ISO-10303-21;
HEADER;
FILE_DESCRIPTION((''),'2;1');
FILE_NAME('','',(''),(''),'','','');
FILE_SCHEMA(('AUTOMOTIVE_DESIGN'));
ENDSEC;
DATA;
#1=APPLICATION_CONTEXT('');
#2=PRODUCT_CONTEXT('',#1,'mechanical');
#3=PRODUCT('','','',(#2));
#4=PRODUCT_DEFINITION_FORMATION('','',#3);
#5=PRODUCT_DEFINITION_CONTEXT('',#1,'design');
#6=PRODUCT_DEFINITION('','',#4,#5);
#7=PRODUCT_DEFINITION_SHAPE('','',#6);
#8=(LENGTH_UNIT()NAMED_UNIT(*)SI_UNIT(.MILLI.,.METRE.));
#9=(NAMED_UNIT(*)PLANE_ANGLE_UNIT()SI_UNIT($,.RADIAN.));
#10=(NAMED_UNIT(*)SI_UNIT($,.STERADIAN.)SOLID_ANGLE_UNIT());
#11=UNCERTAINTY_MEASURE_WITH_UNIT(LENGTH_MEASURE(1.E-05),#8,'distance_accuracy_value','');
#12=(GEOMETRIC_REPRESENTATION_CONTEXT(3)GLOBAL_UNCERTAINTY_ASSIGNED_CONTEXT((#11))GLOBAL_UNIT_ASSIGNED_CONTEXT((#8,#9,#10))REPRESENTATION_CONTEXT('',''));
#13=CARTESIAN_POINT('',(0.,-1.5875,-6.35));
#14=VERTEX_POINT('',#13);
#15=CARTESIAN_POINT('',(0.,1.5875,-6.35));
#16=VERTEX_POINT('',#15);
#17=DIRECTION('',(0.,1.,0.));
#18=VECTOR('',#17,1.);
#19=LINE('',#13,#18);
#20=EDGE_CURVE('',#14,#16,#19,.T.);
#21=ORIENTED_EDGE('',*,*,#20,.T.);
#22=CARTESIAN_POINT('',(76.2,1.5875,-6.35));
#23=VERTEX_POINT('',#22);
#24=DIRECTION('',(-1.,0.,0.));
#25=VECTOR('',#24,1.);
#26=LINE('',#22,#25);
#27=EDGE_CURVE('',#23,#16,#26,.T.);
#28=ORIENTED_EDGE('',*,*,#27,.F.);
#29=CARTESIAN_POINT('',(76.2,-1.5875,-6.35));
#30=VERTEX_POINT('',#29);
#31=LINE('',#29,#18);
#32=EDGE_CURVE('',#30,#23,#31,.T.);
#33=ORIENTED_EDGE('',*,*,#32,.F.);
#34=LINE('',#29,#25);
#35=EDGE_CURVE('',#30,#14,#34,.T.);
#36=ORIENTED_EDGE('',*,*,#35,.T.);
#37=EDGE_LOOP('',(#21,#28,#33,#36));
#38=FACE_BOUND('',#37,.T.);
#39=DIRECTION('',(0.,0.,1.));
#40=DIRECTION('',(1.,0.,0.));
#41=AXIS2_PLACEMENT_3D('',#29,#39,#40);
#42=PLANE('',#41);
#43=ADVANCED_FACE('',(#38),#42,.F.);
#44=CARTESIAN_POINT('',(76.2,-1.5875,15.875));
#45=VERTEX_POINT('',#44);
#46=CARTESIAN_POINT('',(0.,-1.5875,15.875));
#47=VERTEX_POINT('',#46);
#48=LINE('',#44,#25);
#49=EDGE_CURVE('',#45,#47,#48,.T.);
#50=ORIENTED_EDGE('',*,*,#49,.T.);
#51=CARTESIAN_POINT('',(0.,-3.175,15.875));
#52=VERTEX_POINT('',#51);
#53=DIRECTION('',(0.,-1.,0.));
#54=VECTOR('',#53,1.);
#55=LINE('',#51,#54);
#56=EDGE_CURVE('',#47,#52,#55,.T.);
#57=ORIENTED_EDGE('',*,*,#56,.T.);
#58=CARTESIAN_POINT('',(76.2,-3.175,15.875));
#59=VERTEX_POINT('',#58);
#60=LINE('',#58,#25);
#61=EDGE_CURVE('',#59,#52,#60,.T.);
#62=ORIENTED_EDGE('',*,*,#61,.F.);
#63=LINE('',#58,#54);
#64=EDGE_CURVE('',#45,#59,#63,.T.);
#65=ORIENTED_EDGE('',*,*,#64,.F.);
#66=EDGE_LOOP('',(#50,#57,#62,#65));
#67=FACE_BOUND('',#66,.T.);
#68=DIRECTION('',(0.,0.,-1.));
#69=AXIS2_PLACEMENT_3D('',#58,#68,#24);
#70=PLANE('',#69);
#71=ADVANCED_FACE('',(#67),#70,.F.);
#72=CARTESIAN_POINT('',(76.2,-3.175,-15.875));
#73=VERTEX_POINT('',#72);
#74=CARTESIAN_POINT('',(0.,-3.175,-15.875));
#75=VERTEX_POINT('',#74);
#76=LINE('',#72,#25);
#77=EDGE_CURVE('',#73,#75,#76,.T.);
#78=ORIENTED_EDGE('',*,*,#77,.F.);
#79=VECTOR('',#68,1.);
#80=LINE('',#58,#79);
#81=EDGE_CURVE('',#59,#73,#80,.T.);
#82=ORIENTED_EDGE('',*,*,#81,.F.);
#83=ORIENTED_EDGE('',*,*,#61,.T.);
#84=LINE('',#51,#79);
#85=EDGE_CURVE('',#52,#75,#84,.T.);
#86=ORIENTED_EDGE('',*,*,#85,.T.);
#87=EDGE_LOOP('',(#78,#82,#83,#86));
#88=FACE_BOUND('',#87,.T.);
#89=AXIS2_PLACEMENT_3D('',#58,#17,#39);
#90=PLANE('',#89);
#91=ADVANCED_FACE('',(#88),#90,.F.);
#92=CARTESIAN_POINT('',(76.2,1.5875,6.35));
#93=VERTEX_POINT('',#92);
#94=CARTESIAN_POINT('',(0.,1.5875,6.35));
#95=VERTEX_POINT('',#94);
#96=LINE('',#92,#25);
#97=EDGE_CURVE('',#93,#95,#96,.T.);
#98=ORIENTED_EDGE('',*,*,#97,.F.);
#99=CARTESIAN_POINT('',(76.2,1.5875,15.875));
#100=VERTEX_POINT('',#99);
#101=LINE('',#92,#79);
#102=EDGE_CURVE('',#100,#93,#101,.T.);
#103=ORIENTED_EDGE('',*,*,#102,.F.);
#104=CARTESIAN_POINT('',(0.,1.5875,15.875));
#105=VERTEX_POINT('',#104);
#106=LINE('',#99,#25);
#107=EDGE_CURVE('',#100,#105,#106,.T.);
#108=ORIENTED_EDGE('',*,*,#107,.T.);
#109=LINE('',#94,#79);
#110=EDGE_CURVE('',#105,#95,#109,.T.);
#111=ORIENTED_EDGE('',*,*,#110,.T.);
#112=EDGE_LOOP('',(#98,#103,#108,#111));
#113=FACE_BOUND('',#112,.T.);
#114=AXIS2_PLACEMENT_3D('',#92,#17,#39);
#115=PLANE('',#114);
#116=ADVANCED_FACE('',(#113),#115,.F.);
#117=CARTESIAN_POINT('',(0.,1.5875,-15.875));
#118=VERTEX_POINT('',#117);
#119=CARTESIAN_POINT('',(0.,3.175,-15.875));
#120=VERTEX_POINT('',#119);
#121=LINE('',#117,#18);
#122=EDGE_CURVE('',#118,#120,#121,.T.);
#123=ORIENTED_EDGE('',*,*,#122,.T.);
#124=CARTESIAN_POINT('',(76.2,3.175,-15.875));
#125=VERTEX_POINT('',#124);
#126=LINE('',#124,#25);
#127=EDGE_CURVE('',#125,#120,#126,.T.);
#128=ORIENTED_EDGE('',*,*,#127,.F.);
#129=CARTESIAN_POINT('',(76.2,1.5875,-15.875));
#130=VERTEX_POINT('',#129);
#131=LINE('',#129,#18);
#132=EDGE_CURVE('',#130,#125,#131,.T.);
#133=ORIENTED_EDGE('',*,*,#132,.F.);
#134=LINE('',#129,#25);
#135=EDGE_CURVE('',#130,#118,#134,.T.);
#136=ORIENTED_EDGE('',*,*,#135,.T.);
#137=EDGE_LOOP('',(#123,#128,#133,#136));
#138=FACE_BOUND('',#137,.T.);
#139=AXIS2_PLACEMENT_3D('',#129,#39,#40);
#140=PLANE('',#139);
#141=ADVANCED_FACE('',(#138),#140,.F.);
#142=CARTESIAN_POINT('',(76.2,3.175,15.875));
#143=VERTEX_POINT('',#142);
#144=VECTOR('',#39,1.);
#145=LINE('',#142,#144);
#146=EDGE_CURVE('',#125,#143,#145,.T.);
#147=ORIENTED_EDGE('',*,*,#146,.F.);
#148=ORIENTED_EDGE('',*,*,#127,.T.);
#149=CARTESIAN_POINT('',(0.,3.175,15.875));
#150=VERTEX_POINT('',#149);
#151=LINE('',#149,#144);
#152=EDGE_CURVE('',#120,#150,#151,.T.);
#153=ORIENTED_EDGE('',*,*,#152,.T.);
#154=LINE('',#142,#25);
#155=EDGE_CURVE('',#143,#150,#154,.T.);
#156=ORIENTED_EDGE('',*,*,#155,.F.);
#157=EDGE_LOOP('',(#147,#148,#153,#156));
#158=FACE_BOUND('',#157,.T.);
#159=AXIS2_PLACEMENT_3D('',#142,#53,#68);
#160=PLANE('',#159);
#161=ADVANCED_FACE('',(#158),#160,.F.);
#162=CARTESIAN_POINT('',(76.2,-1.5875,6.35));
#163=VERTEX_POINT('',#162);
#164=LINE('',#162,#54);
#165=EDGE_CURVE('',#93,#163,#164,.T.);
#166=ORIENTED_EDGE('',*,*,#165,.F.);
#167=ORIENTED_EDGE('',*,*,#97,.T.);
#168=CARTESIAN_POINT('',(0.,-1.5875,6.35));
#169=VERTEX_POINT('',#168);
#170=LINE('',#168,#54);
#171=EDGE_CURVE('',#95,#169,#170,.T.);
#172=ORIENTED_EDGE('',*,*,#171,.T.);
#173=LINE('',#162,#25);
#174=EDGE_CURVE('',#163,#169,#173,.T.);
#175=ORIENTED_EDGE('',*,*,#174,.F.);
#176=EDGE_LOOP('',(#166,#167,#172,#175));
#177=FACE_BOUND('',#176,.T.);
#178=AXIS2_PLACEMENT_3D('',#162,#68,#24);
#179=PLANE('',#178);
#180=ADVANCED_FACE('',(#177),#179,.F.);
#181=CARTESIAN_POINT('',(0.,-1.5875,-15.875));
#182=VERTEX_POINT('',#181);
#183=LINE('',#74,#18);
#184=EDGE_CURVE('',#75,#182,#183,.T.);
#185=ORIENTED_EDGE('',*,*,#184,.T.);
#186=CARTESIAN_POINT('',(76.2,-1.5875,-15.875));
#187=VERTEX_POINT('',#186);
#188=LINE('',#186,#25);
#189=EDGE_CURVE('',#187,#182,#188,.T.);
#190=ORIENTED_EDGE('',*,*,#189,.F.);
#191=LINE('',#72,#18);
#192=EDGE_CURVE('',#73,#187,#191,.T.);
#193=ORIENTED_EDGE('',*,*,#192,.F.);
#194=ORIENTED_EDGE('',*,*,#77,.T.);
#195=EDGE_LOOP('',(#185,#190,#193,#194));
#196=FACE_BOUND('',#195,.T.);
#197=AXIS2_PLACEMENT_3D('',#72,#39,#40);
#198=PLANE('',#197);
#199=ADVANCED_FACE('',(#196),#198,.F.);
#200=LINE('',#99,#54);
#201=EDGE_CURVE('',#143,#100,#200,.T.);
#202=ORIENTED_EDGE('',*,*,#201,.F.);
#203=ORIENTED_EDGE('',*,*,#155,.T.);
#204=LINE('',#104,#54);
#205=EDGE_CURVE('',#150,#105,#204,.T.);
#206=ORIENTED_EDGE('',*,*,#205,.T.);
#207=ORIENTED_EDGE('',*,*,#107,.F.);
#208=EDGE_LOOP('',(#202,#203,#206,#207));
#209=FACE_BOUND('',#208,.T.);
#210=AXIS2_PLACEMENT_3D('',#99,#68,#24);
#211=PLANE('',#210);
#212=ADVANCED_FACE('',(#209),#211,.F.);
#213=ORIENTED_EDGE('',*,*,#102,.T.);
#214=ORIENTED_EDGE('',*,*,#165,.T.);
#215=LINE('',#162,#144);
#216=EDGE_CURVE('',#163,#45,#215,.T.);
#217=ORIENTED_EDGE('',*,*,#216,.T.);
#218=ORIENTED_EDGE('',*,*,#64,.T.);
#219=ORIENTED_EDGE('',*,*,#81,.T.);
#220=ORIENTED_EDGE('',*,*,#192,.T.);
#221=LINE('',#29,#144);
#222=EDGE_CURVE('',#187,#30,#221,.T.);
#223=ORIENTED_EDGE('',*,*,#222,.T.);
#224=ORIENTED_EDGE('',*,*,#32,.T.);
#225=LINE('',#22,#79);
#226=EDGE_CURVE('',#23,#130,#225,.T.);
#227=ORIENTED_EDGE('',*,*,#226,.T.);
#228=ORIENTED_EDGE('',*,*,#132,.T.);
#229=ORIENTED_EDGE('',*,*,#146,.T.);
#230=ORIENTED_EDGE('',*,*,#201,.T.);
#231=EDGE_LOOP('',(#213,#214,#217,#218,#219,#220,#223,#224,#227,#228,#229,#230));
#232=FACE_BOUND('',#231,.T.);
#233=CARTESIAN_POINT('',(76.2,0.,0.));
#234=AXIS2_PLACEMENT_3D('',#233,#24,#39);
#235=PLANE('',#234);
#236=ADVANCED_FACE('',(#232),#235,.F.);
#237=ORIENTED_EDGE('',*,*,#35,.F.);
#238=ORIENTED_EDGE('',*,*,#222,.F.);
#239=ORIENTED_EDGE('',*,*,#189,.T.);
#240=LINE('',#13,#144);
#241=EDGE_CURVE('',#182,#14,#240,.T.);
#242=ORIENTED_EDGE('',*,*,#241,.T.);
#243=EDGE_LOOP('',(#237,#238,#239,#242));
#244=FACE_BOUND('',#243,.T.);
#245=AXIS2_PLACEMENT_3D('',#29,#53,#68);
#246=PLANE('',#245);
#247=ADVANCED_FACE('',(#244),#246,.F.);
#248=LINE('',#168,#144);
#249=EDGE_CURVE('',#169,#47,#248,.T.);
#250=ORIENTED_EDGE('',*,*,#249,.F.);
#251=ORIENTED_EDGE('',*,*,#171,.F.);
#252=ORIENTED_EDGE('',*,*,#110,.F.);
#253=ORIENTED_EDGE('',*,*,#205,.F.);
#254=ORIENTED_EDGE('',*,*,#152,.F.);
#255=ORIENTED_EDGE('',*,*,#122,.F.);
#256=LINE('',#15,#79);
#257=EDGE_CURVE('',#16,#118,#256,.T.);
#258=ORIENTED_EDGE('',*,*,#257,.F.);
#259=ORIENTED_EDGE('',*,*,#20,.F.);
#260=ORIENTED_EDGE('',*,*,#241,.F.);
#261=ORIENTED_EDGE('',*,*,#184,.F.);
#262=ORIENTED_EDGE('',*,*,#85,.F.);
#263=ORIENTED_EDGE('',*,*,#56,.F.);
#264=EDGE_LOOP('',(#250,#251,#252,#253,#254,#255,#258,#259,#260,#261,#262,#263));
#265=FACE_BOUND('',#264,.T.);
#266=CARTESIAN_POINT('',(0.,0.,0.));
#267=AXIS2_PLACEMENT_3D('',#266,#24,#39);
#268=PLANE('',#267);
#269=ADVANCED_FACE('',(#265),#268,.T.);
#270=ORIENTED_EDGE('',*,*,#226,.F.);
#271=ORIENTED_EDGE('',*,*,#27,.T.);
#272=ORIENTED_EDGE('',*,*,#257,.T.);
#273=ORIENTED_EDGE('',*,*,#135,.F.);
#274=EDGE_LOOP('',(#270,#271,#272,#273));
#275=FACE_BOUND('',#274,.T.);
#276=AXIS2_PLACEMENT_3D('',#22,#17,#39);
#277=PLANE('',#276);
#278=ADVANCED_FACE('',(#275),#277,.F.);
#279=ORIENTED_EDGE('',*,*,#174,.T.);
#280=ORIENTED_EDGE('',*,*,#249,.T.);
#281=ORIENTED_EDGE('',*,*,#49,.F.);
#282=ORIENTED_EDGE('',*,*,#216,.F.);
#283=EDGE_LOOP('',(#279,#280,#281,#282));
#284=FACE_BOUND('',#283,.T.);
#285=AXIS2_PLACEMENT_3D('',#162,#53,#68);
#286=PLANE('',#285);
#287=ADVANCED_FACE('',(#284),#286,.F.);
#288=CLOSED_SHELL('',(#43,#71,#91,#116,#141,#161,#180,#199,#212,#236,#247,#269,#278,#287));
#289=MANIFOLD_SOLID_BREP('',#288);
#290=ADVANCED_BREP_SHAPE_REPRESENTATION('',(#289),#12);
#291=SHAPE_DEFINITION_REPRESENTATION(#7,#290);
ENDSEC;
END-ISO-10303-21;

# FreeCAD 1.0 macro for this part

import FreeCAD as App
import Part
import Sketcher

V = App.Vector
Q = App.Units.Quantity


def add_polygon(sketch, points):
    """Adds a closed chain of lines whose ends are joined by coincident constraints."""
    first, n = sketch.GeometryCount, len(points)
    for a, b in zip(points, points[1:] + points[:1]):
        sketch.addGeometry(Part.LineSegment(App.Vector(*a, 0), App.Vector(*b, 0)), False)
    for i in range(n):
        sketch.addConstraint(Sketcher.Constraint("Coincident", first + i, 2, first + (i + 1) % n, 1))

doc = App.newDocument("Part")
body = doc.addObject("PartDesign::Body", "Body")

# Sketch on YZ plane
sketch1 = body.newObject("Sketcher::SketchObject", "Sketch")
sketch1.AttachmentSupport = (doc.getObject("YZ_Plane"), [""])
sketch1.MapMode = "FlatFace"
add_polygon(sketch1, [(3.2, 15.9), (1.6, 15.9), (1.6, 6.3), (-1.6, 6.3), (-1.6, 15.9), (-3.2, 15.9), (-3.2, -15.9), (-1.6, -15.9), (-1.6, -6.3), (1.6, -6.3), (1.6, -15.9), (3.2, -15.9)])  # lines 0-11
sketch1.addConstraint(Sketcher.Constraint("Horizontal", 0))
sketch1.addConstraint(Sketcher.Constraint("Vertical", 1))
sketch1.addConstraint(Sketcher.Constraint("Horizontal", 2))
sketch1.addConstraint(Sketcher.Constraint("Vertical", 3))
sketch1.addConstraint(Sketcher.Constraint("Horizontal", 4))
sketch1.addConstraint(Sketcher.Constraint("Vertical", 5))
sketch1.addConstraint(Sketcher.Constraint("Horizontal", 6))
sketch1.addConstraint(Sketcher.Constraint("Vertical", 7))
sketch1.addConstraint(Sketcher.Constraint("Horizontal", 8))
sketch1.addConstraint(Sketcher.Constraint("Vertical", 9))
sketch1.addConstraint(Sketcher.Constraint("Horizontal", 10))
sketch1.addConstraint(Sketcher.Constraint("Vertical", 11))
sketch1.addConstraint(Sketcher.Constraint("Symmetric", 0, 2, 6, 2, -1, 1))
sketch1.addConstraint(Sketcher.Constraint("Symmetric", 2, 2, 8, 2, -1, 1))
sketch1.addConstraint(Sketcher.Constraint("Symmetric", 4, 2, 10, 2, -1, 1))
sketch1.addConstraint(Sketcher.Constraint("Symmetric", 0, 2, 3, 2, -2))
sketch1.addConstraint(Sketcher.Constraint("DistanceY", 5, 2, 5, 1, Q("1.25 in")))
sketch1.addConstraint(Sketcher.Constraint("DistanceY", 7, 2, 2, 2, Q("0.5 in")))
sketch1.addConstraint(Sketcher.Constraint("DistanceX", 0, 2, 0, 1, Q("0.0625 in")))
sketch1.addConstraint(Sketcher.Constraint("DistanceX", 2, 2, 2, 1, Q("0.125 in")))
pad1 = body.newObject("PartDesign::Pad", "Pad")
pad1.Profile = sketch1
pad1.Length = Q("3 in")

doc.recompute()
